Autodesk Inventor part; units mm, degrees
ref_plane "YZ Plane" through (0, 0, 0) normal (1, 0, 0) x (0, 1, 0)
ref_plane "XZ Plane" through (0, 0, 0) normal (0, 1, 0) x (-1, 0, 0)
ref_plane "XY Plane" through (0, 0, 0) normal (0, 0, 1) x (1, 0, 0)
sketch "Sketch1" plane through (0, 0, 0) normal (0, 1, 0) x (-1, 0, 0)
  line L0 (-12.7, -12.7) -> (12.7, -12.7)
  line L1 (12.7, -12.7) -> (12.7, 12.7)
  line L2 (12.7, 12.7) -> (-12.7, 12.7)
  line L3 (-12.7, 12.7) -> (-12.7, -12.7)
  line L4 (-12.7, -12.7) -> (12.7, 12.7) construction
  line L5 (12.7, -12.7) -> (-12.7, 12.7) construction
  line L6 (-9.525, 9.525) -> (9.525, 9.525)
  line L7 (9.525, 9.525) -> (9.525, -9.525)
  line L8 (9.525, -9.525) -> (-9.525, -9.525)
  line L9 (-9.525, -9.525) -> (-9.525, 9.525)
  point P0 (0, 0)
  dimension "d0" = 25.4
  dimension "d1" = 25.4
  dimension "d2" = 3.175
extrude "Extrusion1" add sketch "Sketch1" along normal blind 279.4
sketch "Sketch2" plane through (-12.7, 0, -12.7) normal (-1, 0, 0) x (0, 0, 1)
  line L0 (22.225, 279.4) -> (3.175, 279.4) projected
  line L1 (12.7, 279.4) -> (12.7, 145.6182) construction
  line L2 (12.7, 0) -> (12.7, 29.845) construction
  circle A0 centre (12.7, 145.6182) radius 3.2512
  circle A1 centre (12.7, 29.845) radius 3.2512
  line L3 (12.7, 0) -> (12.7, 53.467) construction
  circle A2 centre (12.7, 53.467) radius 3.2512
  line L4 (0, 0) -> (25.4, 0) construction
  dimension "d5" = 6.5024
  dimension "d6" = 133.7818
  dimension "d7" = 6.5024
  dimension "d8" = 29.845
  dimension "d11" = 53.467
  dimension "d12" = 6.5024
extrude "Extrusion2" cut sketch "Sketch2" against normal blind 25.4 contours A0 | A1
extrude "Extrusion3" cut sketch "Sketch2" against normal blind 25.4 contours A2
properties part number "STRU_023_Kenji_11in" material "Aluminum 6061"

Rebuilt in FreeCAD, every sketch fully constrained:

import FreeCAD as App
import Part
import Sketcher

V = App.Vector
Q = App.Units.Quantity


def add_polygon(sketch, points):
    """Adds a closed chain of lines whose ends are joined by coincident constraints."""
    first, n = sketch.GeometryCount, len(points)
    for a, b in zip(points, points[1:] + points[:1]):
        sketch.addGeometry(Part.LineSegment(App.Vector(*a, 0), App.Vector(*b, 0)), False)
    for i in range(n):
        sketch.addConstraint(Sketcher.Constraint("Coincident", first + i, 2, first + (i + 1) % n, 1))

doc = App.newDocument("Part")
params = doc.addObject("Spreadsheet::Sheet", "Params")
for row, (alias, value) in enumerate([
    ("sketch1_width", "1 in"),
    ("pad1_length", "11 in"),
    ("sketch2_diameter", "0.256 in"),
    ("pocket1_length", "1 in"),
    ("sketch3_diameter", "0.256 in"),
    ("pocket2_length", "1 in"),
], start=1):
    params.set(f"A{row}", alias)
    params.set(f"B{row}", "=" + value)
    params.setAlias(f"B{row}", alias)

body = doc.addObject("PartDesign::Body", "Body")

sketch1 = body.newObject("Sketcher::SketchObject", "Sketch")
sketch1.AttachmentSupport = (doc.getObject("XZ_Plane"), [""])
sketch1.MapMode = "FlatFace"
add_polygon(sketch1, [(13, 13), (13, -13), (-13, -13), (-13, 13)])
add_polygon(sketch1, [(10, -10), (10, 10), (-10, 10), (-10, -10)])
sketch1.addConstraint([
    Sketcher.Constraint("Vertical", 0),
    Sketcher.Constraint("Horizontal", 1),
    Sketcher.Constraint("Vertical", 2),
    Sketcher.Constraint("Horizontal", 3),
    Sketcher.Constraint("Vertical", 4),
    Sketcher.Constraint("Horizontal", 5),
    Sketcher.Constraint("Vertical", 6),
    Sketcher.Constraint("Horizontal", 7),
    Sketcher.Constraint("Symmetric", 0, 2, 2, 2, -1, 1),
    Sketcher.Constraint("Symmetric", 4, 2, 6, 2, -1, 1),
    Sketcher.Constraint("Equal", 3, 0),
    Sketcher.Constraint("Equal", 7, 4),
    Sketcher.Constraint("DistanceX", 1, 2, 1, 1, Q("1 in")),
    Sketcher.Constraint("DistanceX", 4, 2, 3, 2, Q("0.125 in")),
])
sketch1.setExpression("Constraints[20]", "Params.sketch1_width")
pad1 = body.newObject("PartDesign::Pad", "Pad")
pad1.Profile = sketch1
pad1.setExpression("Length", "Params.pad1_length")
pad1.Reversed = True

sketch2 = body.newObject("Sketcher::SketchObject", "Sketch001")
sketch2.AttachmentSupport = (doc.getObject("YZ_Plane"), [""])
sketch2.MapMode = "FlatFace"
sketch2.AttachmentOffset = App.Placement(V(0, 0, -0.5 * 25.4), App.Rotation())
sketch2.addGeometry([
    Part.Circle(V(145.6, 0, 0), V(0, 0, 1), 3.3),
    Part.Circle(V(29.8, 0, 0), V(0, 0, 1), 3.3),
], False)
sketch2.addConstraint([
    Sketcher.Constraint("Equal", 0, 1),
    Sketcher.Constraint("PointOnObject", 0, 3, -1),
    Sketcher.Constraint("PointOnObject", 1, 3, -1),
    Sketcher.Constraint("Diameter", 0, Q("0.256 in")),
    Sketcher.Constraint("DistanceX", -1, 1, 1, 3, Q("1.175 in")),
    Sketcher.Constraint("DistanceX", -1, 1, 0, 3, Q("5.733 in")),
])
sketch2.setExpression("Constraints[3]", "Params.sketch2_diameter")
pocket1 = body.newObject("PartDesign::Pocket", "Pocket")
pocket1.Profile = sketch2
pocket1.setExpression("Length", "Params.pocket1_length")
pocket1.Reversed = True

sketch3 = body.newObject("Sketcher::SketchObject", "Sketch002")
sketch3.AttachmentSupport = (doc.getObject("YZ_Plane"), [""])
sketch3.MapMode = "FlatFace"
sketch3.AttachmentOffset = App.Placement(V(0, 0, -0.5 * 25.4), App.Rotation())
sketch3.addGeometry(Part.Circle(V(53.5, 0, 0), V(0, 0, 1), 3.3), False)
sketch3.addConstraint([
    Sketcher.Constraint("PointOnObject", 0, 3, -1),
    Sketcher.Constraint("Diameter", 0, Q("0.256 in")),
    Sketcher.Constraint("DistanceX", -1, 1, 0, 3, Q("2.105 in")),
])
sketch3.setExpression("Constraints[1]", "Params.sketch3_diameter")
pocket2 = body.newObject("PartDesign::Pocket", "Pocket001")
pocket2.Profile = sketch3
pocket2.setExpression("Length", "Params.pocket2_length")
pocket2.Reversed = True

doc.recompute()
